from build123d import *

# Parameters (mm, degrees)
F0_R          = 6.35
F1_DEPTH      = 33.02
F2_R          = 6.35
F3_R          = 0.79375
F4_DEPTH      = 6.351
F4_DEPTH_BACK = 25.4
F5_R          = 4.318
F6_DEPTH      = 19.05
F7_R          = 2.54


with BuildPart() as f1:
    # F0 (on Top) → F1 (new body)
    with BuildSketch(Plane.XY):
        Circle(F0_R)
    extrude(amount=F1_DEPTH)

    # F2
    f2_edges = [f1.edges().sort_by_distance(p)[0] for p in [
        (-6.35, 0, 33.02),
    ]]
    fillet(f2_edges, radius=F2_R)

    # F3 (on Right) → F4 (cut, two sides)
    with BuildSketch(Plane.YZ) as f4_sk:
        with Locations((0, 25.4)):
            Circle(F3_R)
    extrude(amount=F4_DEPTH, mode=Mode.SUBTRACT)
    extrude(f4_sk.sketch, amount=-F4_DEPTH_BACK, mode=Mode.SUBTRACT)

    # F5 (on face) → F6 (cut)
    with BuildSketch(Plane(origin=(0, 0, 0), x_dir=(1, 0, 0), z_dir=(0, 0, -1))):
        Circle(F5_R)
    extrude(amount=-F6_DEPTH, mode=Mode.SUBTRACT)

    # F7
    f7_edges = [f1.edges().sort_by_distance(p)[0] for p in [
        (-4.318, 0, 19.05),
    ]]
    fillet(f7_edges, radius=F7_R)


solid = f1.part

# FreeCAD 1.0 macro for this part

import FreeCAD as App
import Part
import Sketcher
from FreeCAD import Vector
Q = App.Units.Quantity


def edges_at(feature, points):
    """Names of the edges that pass closest to the given points."""
    edges = feature.Shape.Edges
    near = lambda p: min(range(len(edges)), key=lambda i: edges[i].distToShape(Part.Vertex(*p))[0])
    return sorted({f"Edge{near(p) + 1}" for p in points})

doc = App.newDocument("Part")
params = doc.addObject("Spreadsheet::Sheet", "Params")
for row, (alias, value) in enumerate([
    ("sketch1_diameter", "0.5 in"),
    ("pad1_length", "1.3 in"),
    ("fillet_radius", "0.25 in"),
    ("sketch2_diameter", "0.0625 in"),
    ("sketch3_diameter", "0.34 in"),
    ("pocket2_length", "0.75 in"),
    ("fillet2_radius", "0.1 in"),
], start=1):
    params.set(f"A{row}", alias)
    params.set(f"B{row}", "=" + value)
    params.setAlias(f"B{row}", alias)

body = doc.addObject("PartDesign::Body", "Body")

# Sketch on XY plane
sketch1 = doc.addObject("Sketcher::SketchObject", "Sketch")
body.addObject(sketch1)
sketch1.AttachmentSupport = (doc.XY_Plane, [""])
sketch1.MapMode = "FlatFace"
sketch1.addGeometry(Part.Circle(Vector(0, 0, 0), Vector(0, 0, 1), 6), False)
sketch1.addConstraint([
    Sketcher.Constraint("Coincident", 0, 3, -1, 1),
    Sketcher.Constraint("Diameter", 0, Q("0.5 in")),
])
sketch1.setExpression("Constraints[1]", "Params.sketch1_diameter")
pad1 = doc.addObject("PartDesign::Pad", "Pad")
body.addObject(pad1)
pad1.Profile = sketch1
pad1.setExpression("Length", "Params.pad1_length")
doc.recompute()

fillet = doc.addObject("PartDesign::Fillet", "Fillet")
body.addObject(fillet)
fillet.Base = (pad1, edges_at(pad1, [(-6.35, 0, 33.02)]))
fillet.setExpression("Radius", "Params.fillet_radius")

# Sketch on YZ plane
sketch2 = doc.addObject("Sketcher::SketchObject", "Sketch001")
body.addObject(sketch2)
sketch2.AttachmentSupport = (doc.YZ_Plane, [""])
sketch2.MapMode = "FlatFace"
sketch2.addGeometry(Part.Circle(Vector(0, 25.4, 0), Vector(0, 0, 1), 0.8), False)
sketch2.addConstraint([
    Sketcher.Constraint("PointOnObject", 0, 3, -2),
    Sketcher.Constraint("Diameter", 0, Q("0.0625 in")),
    Sketcher.Constraint("DistanceY", -1, 1, 0, 3, Q("1 in")),
])
sketch2.setExpression("Constraints[1]", "Params.sketch2_diameter")
pocket1 = doc.addObject("PartDesign::Pocket", "Pocket")
body.addObject(pocket1)
pocket1.Profile = sketch2
pocket1.Type = "ThroughAll"
pocket1.Midplane = True

# Sketch on XY plane
sketch3 = doc.addObject("Sketcher::SketchObject", "Sketch002")
body.addObject(sketch3)
sketch3.AttachmentSupport = (doc.XY_Plane, [""])
sketch3.MapMode = "FlatFace"
sketch3.addGeometry(Part.Circle(Vector(0, 0, 0), Vector(0, 0, 1), 4.3), False)
sketch3.addConstraint([
    Sketcher.Constraint("Coincident", 0, 3, -1, 1),
    Sketcher.Constraint("Diameter", 0, Q("0.34 in")),
])
sketch3.setExpression("Constraints[1]", "Params.sketch3_diameter")
pocket2 = doc.addObject("PartDesign::Pocket", "Pocket001")
body.addObject(pocket2)
pocket2.Profile = sketch3
pocket2.setExpression("Length", "Params.pocket2_length")
pocket2.Reversed = True
doc.recompute()

fillet2 = doc.addObject("PartDesign::Fillet", "Fillet001")
body.addObject(fillet2)
fillet2.Base = (pocket2, edges_at(pocket2, [(-4.318, 0, 19.05)]))
fillet2.setExpression("Radius", "Params.fillet2_radius")

doc.recompute()
